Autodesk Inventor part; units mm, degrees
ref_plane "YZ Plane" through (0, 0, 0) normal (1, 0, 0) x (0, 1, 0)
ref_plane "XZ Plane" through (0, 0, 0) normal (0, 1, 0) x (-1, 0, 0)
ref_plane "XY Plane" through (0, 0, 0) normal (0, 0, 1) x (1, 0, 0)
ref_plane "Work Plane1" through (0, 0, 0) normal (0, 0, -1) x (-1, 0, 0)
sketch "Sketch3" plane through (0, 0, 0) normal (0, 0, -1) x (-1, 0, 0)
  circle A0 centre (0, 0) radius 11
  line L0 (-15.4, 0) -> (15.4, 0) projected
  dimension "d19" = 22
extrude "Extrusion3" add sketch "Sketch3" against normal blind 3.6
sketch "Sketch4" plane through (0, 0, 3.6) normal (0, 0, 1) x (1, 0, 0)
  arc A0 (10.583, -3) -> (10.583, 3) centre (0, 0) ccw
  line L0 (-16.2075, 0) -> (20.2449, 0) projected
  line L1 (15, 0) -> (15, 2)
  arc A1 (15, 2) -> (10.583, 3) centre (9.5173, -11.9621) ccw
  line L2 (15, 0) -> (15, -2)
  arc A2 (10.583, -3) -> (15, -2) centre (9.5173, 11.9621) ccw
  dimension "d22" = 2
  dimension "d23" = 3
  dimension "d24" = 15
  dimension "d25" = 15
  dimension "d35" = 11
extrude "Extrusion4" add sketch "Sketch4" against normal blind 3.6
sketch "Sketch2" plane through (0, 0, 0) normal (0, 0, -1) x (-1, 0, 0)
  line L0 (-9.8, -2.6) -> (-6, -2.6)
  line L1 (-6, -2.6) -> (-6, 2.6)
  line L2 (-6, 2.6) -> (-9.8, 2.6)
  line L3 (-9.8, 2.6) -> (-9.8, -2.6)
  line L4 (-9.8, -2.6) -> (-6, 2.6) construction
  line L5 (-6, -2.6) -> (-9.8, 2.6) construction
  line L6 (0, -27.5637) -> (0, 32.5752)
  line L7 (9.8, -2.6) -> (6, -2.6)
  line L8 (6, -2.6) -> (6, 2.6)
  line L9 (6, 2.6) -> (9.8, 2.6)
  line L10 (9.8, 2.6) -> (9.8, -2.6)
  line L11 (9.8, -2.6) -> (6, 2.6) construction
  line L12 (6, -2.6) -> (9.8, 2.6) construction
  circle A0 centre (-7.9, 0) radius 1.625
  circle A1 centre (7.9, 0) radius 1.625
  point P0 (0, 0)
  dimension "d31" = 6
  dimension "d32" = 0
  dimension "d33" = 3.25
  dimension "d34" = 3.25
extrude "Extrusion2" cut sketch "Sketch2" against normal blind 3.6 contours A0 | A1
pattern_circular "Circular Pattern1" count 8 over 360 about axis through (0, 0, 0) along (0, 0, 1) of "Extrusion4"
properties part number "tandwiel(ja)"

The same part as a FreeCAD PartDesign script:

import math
import FreeCAD as App
import Part
import Sketcher

V = App.Vector
Q = App.Units.Quantity

doc = App.newDocument("Part")
body = doc.addObject("PartDesign::Body", "Body")

sketch1 = body.newObject("Sketcher::SketchObject", "Sketch")
sketch1.AttachmentSupport = (doc.getObject("XY_Plane"), [""])
sketch1.MapMode = "FlatFace"
sketch1.addGeometry(Part.Circle(V(0, 0, 0), V(0, 0, 1), 11), False)
sketch1.addConstraint([
    Sketcher.Constraint("Coincident", 0, 3, -1, 1),
    Sketcher.Constraint("Diameter", 0, Q("22 mm")),
])
pad1 = body.newObject("PartDesign::Pad", "Pad")
pad1.Profile = sketch1
pad1.Length = 3.6

sketch2 = body.newObject("Sketcher::SketchObject", "Sketch001")
sketch2.AttachmentSupport = (doc.getObject("XY_Plane"), [""])
sketch2.MapMode = "FlatFace"
sketch2.AttachmentOffset = App.Placement(V(0, 0, 3.6), App.Rotation())
sketch2.addGeometry([
    Part.ArcOfCircle(Part.Circle(V(9.5, 12, 0), V(0, 0, 1), 15), math.radians(-85.93), math.radians(-68.56)),
    Part.LineSegment(V(15, -2, 0), V(15, 2, 0)),
    Part.ArcOfCircle(Part.Circle(V(9.5, -12, 0), V(0, 0, 1), 15), math.radians(68.56), math.radians(85.93)),
    Part.ArcOfCircle(Part.Circle(V(0, 0, 0), V(0, 0, 1), 11), math.radians(-16), math.radians(16)),
], False)
sketch2.addConstraint([
    Sketcher.Constraint("Coincident", 0, 2, 1, 1),
    Sketcher.Constraint("Coincident", 1, 2, 2, 1),
    Sketcher.Constraint("Coincident", 2, 2, 3, 2),
    Sketcher.Constraint("Coincident", 3, 1, 0, 1),
    Sketcher.Constraint("Vertical", 1),
    Sketcher.Constraint("Coincident", 3, 3, -1, 1),
    Sketcher.Constraint("Equal", 0, 2),
    Sketcher.Constraint("Symmetric", 0, 3, 2, 3, -1),
    Sketcher.Constraint("Radius", 0, Q("15 mm")),
    Sketcher.Constraint("Radius", 3, Q("11 mm")),
    Sketcher.Constraint("DistanceX", -1, 1, 0, 2, Q("15 mm")),
    Sketcher.Constraint("DistanceY", 0, 2, -1, 1, Q("2 mm")),
    Sketcher.Constraint("DistanceY", -1, 1, 2, 2, Q("3 mm")),
])
pad2 = body.newObject("PartDesign::Pad", "Pad001")
pad2.Profile = sketch2
pad2.Length = 3.6
pad2.Reversed = True

sketch3 = body.newObject("Sketcher::SketchObject", "Sketch002")
sketch3.AttachmentSupport = (doc.getObject("XY_Plane"), [""])
sketch3.MapMode = "FlatFace"
sketch3.addGeometry([
    Part.Circle(V(7.9, 0, 0), V(0, 0, 1), 1.6),
    Part.Circle(V(-7.9, 0, 0), V(0, 0, 1), 1.6),
], False)
sketch3.addConstraint([
    Sketcher.Constraint("Equal", 0, 1),
    Sketcher.Constraint("Symmetric", 0, 3, 1, 3, -1, 1),
    Sketcher.Constraint("PointOnObject", 0, 3, -1),
    Sketcher.Constraint("Diameter", 0, Q("3.25 mm")),
    Sketcher.Constraint("DistanceX", -1, 1, 0, 3, Q("7.9 mm")),
])
pocket1 = body.newObject("PartDesign::Pocket", "Pocket")
pocket1.Profile = sketch3
pocket1.Length = 3.6
pocket1.Reversed = True
doc.recompute()

polarpattern = body.newObject("PartDesign::PolarPattern", "PolarPattern")
polarpattern.Originals = [pad2]
polarpattern.Axis = (doc.getObject("Z_Axis"), [""])
polarpattern.Angle = 360
polarpattern.Occurrences = 8
body.Tip = polarpattern

doc.recompute()
